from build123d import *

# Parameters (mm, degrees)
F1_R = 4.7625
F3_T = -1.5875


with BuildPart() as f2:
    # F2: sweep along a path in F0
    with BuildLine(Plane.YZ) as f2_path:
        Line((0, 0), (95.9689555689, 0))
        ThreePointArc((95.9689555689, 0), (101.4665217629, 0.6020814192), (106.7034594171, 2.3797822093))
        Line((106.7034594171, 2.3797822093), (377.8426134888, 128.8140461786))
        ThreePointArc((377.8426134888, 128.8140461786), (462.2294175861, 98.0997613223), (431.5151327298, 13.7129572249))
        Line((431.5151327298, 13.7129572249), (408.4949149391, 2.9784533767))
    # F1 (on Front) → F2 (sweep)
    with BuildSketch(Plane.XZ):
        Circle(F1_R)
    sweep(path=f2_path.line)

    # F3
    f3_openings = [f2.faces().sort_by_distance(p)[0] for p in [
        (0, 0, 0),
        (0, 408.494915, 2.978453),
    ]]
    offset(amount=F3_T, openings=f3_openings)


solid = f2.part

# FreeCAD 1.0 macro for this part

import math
import FreeCAD as App
import Part
import Sketcher

V = App.Vector
Q = App.Units.Quantity


def faces_at(feature, points):
    """Names of the faces that lie closest to the given points."""
    faces = feature.Shape.Faces
    near = lambda p: min(range(len(faces)), key=lambda i: faces[i].distToShape(Part.Vertex(*p))[0])
    return sorted({f"Face{near(p) + 1}" for p in points})

doc = App.newDocument("Part")
body = doc.addObject("PartDesign::Body", "Body")

# Sketch on XZ plane
sketch1 = doc.addObject("Sketcher::SketchObject", "Sketch")
body.addObject(sketch1)
sketch1.AttachmentSupport = (doc.XZ_Plane, [""])
sketch1.MapMode = "FlatFace"
sketch1.addGeometry(Part.Circle(V(0, 0, 0), V(0, 0, 1), 4.7625), False)
sketch1.addConstraint([
    Sketcher.Constraint("Coincident", 0, 3, -1, 1),
    Sketcher.Constraint("Diameter", 0, Q("0.375 in")),
])

# Sketch on YZ plane
sketch2 = doc.addObject("Sketcher::SketchObject", "Sketch001")
body.addObject(sketch2)
sketch2.AttachmentSupport = (doc.YZ_Plane, [""])
sketch2.MapMode = "FlatFace"
sketch2.addGeometry([
    Part.LineSegment(V(0, 0, 0), V(95.968956, 0, 0)),  # 0
    Part.ArcOfCircle(Part.Circle(V(95.968956, 25.4, 0), V(0, 0, 1), 25.4), math.radians(-90), math.radians(-65)),  # 1
    Part.LineSegment(V(106.703459, 2.379782, 0), V(377.842613, 128.814046, 0)),  # 2
    Part.ArcOfCircle(Part.Circle(V(404.678873, 71.263502, 0), V(0, 0, 1), 63.5), math.radians(-65), math.radians(115)),  # 3
    Part.LineSegment(V(431.515133, 13.712957, 0), V(408.494915, 2.978453, 0)),  # 4
], False)
sketch2.addConstraint([
    Sketcher.Constraint("Tangent", 0, 2, 1, 1),
    Sketcher.Constraint("Tangent", 1, 2, 2, 1),
    Sketcher.Constraint("Tangent", 2, 2, 3, 2),
    Sketcher.Constraint("Tangent", 3, 1, 4, 1),
    Sketcher.Constraint("Horizontal", 0),
    Sketcher.Constraint("Coincident", 0, 1, -1, 1),
    Sketcher.Constraint("Parallel", 2, 4),
    Sketcher.Constraint("Radius", 1, Q("1 in")),
    Sketcher.Constraint("Radius", 3, Q("2.5 in")),
    Sketcher.Constraint("Distance", 4, Q("1 in")),
    Sketcher.Constraint("Angle", 2, Q("25 deg")),
    Sketcher.Constraint("DistanceY", -1, 1, 3, 3, Q("71.263502 mm")),
    Sketcher.Constraint("DistanceX", 0, 1, 0, 2, Q("95.968956 mm")),
])
doc.recompute()

additivepipe = doc.addObject("PartDesign::AdditivePipe", "AdditivePipe")
body.addObject(additivepipe)
additivepipe.Profile = sketch1
additivepipe.Spine = (sketch2, ["Edge1", "Edge2", "Edge3", "Edge4", "Edge5"])
doc.recompute()

thickness = doc.addObject("PartDesign::Thickness", "Thickness")
body.addObject(thickness)
thickness.Base = (additivepipe, faces_at(additivepipe, [(0, 0, 0), (0, 408.495, 2.978)]))
thickness.Value = Q("0.0625 in")
thickness.Reversed = True
thickness.Join = "Arc"

doc.recompute()
